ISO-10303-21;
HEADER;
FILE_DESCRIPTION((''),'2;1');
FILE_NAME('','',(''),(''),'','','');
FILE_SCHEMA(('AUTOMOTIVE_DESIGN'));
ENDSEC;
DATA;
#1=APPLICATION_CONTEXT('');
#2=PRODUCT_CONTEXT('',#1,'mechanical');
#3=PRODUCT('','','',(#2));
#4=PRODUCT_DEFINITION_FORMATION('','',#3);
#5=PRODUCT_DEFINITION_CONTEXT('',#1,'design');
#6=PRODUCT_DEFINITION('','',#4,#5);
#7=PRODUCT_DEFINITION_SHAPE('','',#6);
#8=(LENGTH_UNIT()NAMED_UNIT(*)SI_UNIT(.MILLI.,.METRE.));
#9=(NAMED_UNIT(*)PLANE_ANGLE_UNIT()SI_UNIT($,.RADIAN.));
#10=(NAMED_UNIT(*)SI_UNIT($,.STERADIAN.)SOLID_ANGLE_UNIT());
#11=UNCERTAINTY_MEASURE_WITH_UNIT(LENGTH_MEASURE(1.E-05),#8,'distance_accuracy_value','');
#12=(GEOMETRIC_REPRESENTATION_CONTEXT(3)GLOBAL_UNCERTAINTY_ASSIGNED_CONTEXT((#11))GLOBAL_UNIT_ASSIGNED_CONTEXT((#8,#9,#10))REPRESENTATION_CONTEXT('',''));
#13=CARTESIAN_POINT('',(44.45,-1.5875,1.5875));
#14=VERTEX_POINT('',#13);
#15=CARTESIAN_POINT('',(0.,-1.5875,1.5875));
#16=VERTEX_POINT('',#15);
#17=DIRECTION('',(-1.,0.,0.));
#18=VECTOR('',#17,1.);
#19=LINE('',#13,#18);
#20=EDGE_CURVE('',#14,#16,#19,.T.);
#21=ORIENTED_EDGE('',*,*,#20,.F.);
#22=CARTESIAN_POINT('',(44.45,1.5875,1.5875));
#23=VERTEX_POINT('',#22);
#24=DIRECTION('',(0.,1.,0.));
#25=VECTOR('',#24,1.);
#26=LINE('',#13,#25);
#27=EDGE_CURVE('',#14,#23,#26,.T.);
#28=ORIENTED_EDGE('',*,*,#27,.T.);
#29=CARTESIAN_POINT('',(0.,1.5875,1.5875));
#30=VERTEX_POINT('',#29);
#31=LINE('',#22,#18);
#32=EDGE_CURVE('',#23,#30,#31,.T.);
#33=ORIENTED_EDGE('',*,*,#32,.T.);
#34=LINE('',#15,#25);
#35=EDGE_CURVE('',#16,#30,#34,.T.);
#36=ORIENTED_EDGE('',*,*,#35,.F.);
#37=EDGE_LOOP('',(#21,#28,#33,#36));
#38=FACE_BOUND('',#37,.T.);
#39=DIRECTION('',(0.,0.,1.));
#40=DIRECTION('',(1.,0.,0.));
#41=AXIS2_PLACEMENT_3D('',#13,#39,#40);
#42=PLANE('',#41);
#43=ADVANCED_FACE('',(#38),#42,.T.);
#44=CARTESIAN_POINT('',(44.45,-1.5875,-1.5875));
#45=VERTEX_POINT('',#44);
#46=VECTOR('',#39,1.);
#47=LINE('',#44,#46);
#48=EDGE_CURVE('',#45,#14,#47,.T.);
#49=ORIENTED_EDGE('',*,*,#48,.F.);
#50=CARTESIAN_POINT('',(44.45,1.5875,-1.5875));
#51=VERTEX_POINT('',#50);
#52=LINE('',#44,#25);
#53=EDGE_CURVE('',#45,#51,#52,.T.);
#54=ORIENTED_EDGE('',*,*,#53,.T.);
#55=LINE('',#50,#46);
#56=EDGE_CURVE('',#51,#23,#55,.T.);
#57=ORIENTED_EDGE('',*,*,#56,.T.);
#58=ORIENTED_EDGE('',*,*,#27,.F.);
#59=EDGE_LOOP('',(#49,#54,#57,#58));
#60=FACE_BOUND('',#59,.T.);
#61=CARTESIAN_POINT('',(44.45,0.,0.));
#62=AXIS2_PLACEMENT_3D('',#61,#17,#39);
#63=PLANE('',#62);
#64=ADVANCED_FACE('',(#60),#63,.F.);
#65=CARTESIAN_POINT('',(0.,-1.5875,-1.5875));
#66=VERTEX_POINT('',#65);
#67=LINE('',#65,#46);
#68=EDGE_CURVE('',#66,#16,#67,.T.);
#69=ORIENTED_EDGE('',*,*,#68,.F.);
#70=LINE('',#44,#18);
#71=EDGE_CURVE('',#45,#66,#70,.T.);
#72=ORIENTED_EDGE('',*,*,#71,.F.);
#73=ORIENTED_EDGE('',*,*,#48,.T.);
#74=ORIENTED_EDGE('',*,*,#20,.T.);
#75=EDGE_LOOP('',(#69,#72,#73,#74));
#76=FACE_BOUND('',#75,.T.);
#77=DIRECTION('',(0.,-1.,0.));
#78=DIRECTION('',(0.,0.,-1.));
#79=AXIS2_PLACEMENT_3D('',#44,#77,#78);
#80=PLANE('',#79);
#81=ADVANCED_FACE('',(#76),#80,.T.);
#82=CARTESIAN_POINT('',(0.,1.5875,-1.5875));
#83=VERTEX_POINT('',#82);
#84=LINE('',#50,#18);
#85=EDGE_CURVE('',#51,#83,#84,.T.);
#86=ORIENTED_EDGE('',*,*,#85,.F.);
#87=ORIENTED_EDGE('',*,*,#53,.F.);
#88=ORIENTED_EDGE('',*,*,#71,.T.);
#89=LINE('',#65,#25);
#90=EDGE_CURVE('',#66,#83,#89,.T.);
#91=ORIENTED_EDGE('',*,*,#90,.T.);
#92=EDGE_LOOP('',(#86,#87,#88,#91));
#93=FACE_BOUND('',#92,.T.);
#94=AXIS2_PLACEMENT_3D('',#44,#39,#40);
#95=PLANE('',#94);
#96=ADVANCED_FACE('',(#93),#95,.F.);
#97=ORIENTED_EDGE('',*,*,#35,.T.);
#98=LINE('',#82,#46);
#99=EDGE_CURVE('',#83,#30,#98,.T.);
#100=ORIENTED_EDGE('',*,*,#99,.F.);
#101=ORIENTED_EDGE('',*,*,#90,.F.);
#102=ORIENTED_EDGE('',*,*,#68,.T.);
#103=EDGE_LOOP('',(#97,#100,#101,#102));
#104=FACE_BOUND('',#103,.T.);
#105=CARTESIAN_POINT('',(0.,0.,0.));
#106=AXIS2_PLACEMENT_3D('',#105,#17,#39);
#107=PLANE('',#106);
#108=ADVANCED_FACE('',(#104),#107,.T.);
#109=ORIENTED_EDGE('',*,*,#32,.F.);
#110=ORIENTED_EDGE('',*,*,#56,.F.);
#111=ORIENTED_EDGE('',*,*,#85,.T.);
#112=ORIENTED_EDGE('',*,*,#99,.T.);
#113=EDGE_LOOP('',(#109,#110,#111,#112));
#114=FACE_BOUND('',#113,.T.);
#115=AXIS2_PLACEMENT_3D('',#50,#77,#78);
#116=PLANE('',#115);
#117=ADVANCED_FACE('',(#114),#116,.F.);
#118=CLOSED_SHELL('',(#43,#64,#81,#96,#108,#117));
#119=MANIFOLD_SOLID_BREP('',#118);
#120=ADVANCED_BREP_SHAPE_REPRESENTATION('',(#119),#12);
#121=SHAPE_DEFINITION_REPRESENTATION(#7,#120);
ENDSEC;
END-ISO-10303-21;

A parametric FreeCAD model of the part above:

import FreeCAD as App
import Part
import Sketcher

V = App.Vector
Q = App.Units.Quantity


def add_polygon(sketch, points):
    """Adds a closed chain of lines whose ends are joined by coincident constraints."""
    first, n = sketch.GeometryCount, len(points)
    for a, b in zip(points, points[1:] + points[:1]):
        sketch.addGeometry(Part.LineSegment(App.Vector(*a, 0), App.Vector(*b, 0)), False)
    for i in range(n):
        sketch.addConstraint(Sketcher.Constraint("Coincident", first + i, 2, first + (i + 1) % n, 1))

doc = App.newDocument("Part")
params = doc.addObject("Spreadsheet::Sheet", "Params")
for row, (alias, value) in enumerate([
    ("sketch1_width", "0.125 in"),
    ("pad1_length", "1.75 in"),
], start=1):
    params.set(f"A{row}", alias)
    params.set(f"B{row}", "=" + value)
    params.setAlias(f"B{row}", alias)

body = doc.addObject("PartDesign::Body", "Body")

# Sketch on YZ plane
sketch1 = doc.addObject("Sketcher::SketchObject", "Sketch")
body.addObject(sketch1)
sketch1.AttachmentSupport = (doc.YZ_Plane, [""])
sketch1.MapMode = "FlatFace"
add_polygon(sketch1, [(1.6, 1.6), (-1.6, 1.6), (-1.6, -1.6), (1.6, -1.6)])  # lines 0-3
sketch1.addConstraint(Sketcher.Constraint("Horizontal", 0))
sketch1.addConstraint(Sketcher.Constraint("Vertical", 1))
sketch1.addConstraint(Sketcher.Constraint("Horizontal", 2))
sketch1.addConstraint(Sketcher.Constraint("Vertical", 3))
sketch1.addConstraint(Sketcher.Constraint("Symmetric", 0, 2, 2, 2, -1, 1))
sketch1.addConstraint(Sketcher.Constraint("Equal", 2, 1))
sketch1.addConstraint(Sketcher.Constraint("DistanceX", 0, 2, 0, 1, Q("0.125 in")))
sketch1.setExpression("Constraints[10]", "Params.sketch1_width")
pad1 = doc.addObject("PartDesign::Pad", "Pad")
body.addObject(pad1)
pad1.Profile = sketch1
pad1.setExpression("Length", "Params.pad1_length")

doc.recompute()
